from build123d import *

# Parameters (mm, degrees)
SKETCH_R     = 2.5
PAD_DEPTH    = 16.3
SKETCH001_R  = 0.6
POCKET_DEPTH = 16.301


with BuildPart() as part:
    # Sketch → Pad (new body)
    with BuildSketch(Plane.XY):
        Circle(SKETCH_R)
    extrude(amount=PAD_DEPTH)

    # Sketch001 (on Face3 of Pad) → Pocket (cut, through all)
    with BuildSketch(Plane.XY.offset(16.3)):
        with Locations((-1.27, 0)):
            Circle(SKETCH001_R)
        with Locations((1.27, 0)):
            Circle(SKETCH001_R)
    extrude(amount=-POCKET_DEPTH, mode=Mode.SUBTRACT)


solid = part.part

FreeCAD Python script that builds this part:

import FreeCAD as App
import Part
import Sketcher
from FreeCAD import Vector
Q = App.Units.Quantity

doc = App.newDocument("Part")
body = doc.addObject("PartDesign::Body", "Body")

# Sketch on XY plane
sketch1 = doc.addObject("Sketcher::SketchObject", "Sketch")
body.addObject(sketch1)
sketch1.AttachmentSupport = (doc.XY_Plane, [""])
sketch1.MapMode = "FlatFace"
sketch1.addGeometry(Part.Circle(Vector(0, 0, 0), Vector(0, 0, 1), 2.5), False)
sketch1.addConstraint(Sketcher.Constraint("Coincident", 0, 3, -1, 1))
sketch1.addConstraint(Sketcher.Constraint("Diameter", 0, Q("5 mm")))
pad1 = doc.addObject("PartDesign::Pad", "Pad")
body.addObject(pad1)
pad1.Profile = sketch1
pad1.Length = 16.3

# Sketch on XY plane
sketch2 = doc.addObject("Sketcher::SketchObject", "Sketch001")
body.addObject(sketch2)
sketch2.AttachmentSupport = (doc.XY_Plane, [""])
sketch2.MapMode = "FlatFace"
sketch2.AttachmentOffset = App.Placement(Vector(0, 0, 16.3), App.Rotation())
sketch2.addGeometry(Part.Circle(Vector(-1.27, 0, 0), Vector(0, 0, 1), 0.6), False)
sketch2.addGeometry(Part.Circle(Vector(1.27, 0, 0), Vector(0, 0, 1), 0.6), False)
sketch2.addConstraint(Sketcher.Constraint("Equal", 0, 1))
sketch2.addConstraint(Sketcher.Constraint("Symmetric", 0, 3, 1, 3, -1, 1))
sketch2.addConstraint(Sketcher.Constraint("PointOnObject", 0, 3, -1))
sketch2.addConstraint(Sketcher.Constraint("Diameter", 0, Q("1.2 mm")))
sketch2.addConstraint(Sketcher.Constraint("DistanceX", 0, 3, -1, 1, Q("1.27 mm")))
pocket1 = doc.addObject("PartDesign::Pocket", "Pocket")
body.addObject(pocket1)
pocket1.Profile = sketch2
pocket1.Type = "ThroughAll"

doc.recompute()
